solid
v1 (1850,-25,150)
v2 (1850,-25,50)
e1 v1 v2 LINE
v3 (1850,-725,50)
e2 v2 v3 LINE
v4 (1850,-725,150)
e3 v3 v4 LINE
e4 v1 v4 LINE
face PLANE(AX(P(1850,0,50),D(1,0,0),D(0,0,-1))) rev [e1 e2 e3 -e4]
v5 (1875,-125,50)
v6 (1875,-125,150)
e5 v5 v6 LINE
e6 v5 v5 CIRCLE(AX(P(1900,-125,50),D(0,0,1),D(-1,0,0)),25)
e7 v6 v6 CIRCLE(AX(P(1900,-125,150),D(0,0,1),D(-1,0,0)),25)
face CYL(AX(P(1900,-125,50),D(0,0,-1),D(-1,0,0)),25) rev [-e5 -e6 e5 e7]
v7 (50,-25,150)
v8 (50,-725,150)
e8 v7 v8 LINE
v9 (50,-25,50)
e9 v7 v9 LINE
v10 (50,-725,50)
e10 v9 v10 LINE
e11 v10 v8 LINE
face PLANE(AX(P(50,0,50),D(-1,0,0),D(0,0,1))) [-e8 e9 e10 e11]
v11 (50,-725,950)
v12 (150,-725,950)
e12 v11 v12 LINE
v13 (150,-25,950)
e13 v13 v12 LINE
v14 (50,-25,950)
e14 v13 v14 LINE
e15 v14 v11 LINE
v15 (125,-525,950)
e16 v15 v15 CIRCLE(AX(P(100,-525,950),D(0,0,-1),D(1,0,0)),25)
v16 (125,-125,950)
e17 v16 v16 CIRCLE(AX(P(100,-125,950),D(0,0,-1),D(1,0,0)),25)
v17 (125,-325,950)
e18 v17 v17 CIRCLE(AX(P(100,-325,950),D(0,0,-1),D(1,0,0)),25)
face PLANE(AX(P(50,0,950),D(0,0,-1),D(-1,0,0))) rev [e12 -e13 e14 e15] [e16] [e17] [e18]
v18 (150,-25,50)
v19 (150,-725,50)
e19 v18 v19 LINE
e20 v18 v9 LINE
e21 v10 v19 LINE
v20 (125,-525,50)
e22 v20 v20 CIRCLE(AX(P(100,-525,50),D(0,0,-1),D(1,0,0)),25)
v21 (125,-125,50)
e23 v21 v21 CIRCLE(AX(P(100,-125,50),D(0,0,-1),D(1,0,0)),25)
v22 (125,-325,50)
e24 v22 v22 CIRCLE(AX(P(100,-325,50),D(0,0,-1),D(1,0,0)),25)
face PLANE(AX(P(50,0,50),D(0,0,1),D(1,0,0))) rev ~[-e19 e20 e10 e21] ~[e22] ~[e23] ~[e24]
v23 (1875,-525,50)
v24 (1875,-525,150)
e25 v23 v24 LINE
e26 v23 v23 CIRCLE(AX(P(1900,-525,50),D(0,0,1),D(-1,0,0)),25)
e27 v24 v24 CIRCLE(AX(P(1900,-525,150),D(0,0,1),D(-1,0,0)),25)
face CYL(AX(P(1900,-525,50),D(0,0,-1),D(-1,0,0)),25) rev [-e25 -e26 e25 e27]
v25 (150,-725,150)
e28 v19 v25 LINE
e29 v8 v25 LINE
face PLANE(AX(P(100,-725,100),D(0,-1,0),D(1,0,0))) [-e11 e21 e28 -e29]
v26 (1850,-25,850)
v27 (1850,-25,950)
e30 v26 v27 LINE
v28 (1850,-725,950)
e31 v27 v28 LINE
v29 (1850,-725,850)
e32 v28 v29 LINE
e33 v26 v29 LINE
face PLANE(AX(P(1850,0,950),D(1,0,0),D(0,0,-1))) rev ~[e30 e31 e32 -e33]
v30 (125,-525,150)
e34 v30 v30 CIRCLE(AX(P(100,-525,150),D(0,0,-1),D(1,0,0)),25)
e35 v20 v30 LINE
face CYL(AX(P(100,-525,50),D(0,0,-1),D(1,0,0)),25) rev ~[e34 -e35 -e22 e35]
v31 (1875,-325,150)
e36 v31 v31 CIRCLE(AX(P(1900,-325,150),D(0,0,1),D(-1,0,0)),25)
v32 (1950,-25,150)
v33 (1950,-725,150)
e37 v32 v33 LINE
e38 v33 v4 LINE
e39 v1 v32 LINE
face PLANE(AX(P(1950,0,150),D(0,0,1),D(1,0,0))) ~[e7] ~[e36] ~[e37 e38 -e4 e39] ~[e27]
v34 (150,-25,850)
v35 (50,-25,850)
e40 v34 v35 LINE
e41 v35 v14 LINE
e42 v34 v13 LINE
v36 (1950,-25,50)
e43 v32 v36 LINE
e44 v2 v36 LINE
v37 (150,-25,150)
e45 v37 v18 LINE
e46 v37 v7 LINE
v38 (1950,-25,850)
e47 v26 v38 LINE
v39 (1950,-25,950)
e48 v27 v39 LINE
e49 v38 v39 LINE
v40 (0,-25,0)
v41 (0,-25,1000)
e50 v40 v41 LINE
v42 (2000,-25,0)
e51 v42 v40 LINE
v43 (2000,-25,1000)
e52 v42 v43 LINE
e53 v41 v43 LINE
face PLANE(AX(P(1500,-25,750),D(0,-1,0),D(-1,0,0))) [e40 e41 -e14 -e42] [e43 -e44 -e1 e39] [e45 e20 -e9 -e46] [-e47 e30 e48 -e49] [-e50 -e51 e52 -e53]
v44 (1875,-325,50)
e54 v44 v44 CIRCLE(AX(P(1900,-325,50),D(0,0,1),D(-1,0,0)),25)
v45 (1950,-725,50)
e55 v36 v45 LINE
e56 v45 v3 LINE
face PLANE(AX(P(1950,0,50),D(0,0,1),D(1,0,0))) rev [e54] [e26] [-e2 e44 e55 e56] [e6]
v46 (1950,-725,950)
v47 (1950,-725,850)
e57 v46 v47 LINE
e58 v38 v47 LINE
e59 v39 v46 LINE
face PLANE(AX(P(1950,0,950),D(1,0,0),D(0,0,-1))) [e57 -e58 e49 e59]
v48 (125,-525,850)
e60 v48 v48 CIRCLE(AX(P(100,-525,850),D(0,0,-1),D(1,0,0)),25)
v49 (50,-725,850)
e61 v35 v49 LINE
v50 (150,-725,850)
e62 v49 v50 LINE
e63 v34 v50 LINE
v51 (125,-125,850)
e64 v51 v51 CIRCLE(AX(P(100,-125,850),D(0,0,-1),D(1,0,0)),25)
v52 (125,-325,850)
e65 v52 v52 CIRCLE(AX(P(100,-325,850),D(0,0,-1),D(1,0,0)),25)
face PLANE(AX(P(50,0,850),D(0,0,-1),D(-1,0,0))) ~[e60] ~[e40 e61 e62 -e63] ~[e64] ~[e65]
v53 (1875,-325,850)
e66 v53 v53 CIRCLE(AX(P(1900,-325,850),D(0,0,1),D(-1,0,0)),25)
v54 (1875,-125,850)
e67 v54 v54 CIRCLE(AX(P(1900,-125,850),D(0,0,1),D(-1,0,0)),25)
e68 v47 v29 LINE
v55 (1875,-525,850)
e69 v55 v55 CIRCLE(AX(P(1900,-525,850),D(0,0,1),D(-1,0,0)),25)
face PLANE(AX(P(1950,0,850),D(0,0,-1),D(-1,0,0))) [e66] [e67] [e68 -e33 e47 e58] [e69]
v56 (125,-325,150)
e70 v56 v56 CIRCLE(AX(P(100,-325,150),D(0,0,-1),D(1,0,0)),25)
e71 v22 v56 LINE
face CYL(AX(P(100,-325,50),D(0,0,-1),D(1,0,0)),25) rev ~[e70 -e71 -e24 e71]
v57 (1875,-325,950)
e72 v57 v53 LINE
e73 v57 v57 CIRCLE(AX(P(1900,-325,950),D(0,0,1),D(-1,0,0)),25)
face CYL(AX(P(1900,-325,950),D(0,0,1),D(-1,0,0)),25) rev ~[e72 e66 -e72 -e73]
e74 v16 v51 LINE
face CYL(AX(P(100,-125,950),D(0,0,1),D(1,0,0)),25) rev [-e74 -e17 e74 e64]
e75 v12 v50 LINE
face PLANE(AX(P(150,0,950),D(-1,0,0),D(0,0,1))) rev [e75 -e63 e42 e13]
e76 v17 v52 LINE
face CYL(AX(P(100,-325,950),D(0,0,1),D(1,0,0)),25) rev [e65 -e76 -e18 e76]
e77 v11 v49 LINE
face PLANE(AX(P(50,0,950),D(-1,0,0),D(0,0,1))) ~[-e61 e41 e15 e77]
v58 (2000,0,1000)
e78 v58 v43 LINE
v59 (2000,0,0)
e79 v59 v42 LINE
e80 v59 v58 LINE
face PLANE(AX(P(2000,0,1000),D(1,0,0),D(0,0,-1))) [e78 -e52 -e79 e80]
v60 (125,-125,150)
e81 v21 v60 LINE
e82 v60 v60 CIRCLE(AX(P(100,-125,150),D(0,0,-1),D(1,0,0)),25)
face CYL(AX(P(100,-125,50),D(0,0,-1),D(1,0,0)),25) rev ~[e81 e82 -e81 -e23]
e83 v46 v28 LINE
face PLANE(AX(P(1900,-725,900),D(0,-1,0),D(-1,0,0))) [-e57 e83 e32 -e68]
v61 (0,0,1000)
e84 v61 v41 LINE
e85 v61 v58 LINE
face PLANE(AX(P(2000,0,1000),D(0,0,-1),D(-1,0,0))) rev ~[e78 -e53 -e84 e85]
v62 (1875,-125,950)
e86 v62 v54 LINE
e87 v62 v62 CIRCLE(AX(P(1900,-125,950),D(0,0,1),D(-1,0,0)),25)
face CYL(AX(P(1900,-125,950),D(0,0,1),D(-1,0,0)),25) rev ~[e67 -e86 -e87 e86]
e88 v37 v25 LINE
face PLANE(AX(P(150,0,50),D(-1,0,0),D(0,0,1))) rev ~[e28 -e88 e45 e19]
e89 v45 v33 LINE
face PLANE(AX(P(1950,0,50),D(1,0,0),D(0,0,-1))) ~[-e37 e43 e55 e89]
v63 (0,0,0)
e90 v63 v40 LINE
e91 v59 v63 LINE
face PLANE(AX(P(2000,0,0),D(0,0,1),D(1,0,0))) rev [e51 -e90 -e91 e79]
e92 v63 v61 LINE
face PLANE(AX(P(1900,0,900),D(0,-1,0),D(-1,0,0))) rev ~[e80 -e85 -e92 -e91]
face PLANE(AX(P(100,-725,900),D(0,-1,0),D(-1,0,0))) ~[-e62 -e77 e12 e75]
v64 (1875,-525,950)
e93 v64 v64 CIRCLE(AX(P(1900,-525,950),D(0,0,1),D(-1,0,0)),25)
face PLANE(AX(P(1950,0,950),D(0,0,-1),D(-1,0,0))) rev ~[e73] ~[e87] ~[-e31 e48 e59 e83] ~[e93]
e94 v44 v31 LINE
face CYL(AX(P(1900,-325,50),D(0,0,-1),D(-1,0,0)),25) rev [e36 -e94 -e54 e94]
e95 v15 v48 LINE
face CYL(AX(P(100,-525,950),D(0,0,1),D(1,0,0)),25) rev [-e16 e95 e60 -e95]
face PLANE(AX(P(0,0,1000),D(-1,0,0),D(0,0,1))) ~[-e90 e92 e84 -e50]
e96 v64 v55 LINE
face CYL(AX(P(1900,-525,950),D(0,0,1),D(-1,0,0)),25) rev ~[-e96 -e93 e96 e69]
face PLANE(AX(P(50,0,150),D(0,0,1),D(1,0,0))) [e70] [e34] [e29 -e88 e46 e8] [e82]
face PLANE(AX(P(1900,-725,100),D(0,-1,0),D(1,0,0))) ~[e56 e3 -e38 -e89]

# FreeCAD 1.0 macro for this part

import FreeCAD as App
import Part
import Sketcher
Q = App.Units.Quantity

doc = App.newDocument("Part")
body = doc.addObject("PartDesign::Body", "Body")

# Sketch on XZ plane
sketch1 = body.newObject("Sketcher::SketchObject", "Sketch")
sketch1.AttachmentSupport = (doc.getObject("XZ_Plane"), [""])
sketch1.MapMode = "FlatFace"
sketch1.addGeometry(Part.LineSegment(App.Vector(0, 500, 0), App.Vector(0, 0, 0)), False)
sketch1.addGeometry(Part.LineSegment(App.Vector(0, 0, 0), App.Vector(1000, 0, 0)), False)
sketch1.addGeometry(Part.LineSegment(App.Vector(1000, 0, 0), App.Vector(1000, 500, 0)), False)
sketch1.addGeometry(Part.LineSegment(App.Vector(1000, 500, 0), App.Vector(0, 500, 0)), False)
sketch1.addConstraint(Sketcher.Constraint("Coincident", 0, 2, 1, 1))
sketch1.addConstraint(Sketcher.Constraint("Coincident", 1, 2, 2, 1))
sketch1.addConstraint(Sketcher.Constraint("Coincident", 2, 2, 3, 1))
sketch1.addConstraint(Sketcher.Constraint("Coincident", 3, 2, 0, 1))
sketch1.addConstraint(Sketcher.Constraint("Vertical", 0))
sketch1.addConstraint(Sketcher.Constraint("Horizontal", 1))
sketch1.addConstraint(Sketcher.Constraint("Vertical", 2))
sketch1.addConstraint(Sketcher.Constraint("Horizontal", 3))
sketch1.addConstraint(Sketcher.Constraint("Coincident", 0, 2, -1, 1))
sketch1.addConstraint(Sketcher.Constraint("DistanceX", 1, 1, 1, 2, Q("1000 mm")))
sketch1.addConstraint(Sketcher.Constraint("DistanceY", 0, 2, 0, 1, Q("500 mm")))
pad1 = body.newObject("PartDesign::Pad", "Pad")
pad1.Profile = sketch1
pad1.Length = 25

# Sketch on XZ plane
sketch2 = body.newObject("Sketcher::SketchObject", "Sketch001")
sketch2.AttachmentSupport = (doc.getObject("XZ_Plane"), [""])
sketch2.MapMode = "FlatFace"
sketch2.addGeometry(Part.LineSegment(App.Vector(50, 150, 0), App.Vector(50, 50, 0)), False)
sketch2.addGeometry(Part.LineSegment(App.Vector(50, 50, 0), App.Vector(150, 50, 0)), False)
sketch2.addGeometry(Part.LineSegment(App.Vector(150, 50, 0), App.Vector(150, 150, 0)), False)
sketch2.addGeometry(Part.LineSegment(App.Vector(150, 150, 0), App.Vector(50, 150, 0)), False)
sketch2.addConstraint(Sketcher.Constraint("Coincident", 0, 2, 1, 1))
sketch2.addConstraint(Sketcher.Constraint("Coincident", 1, 2, 2, 1))
sketch2.addConstraint(Sketcher.Constraint("Coincident", 2, 2, 3, 1))
sketch2.addConstraint(Sketcher.Constraint("Coincident", 3, 2, 0, 1))
sketch2.addConstraint(Sketcher.Constraint("Vertical", 0))
sketch2.addConstraint(Sketcher.Constraint("Horizontal", 1))
sketch2.addConstraint(Sketcher.Constraint("Vertical", 2))
sketch2.addConstraint(Sketcher.Constraint("Horizontal", 3))
sketch2.addConstraint(Sketcher.Constraint("Equal", 3, 0))
sketch2.addConstraint(Sketcher.Constraint("DistanceX", 1, 1, 1, 2, Q("100 mm")))
sketch2.addConstraint(Sketcher.Constraint("DistanceX", -1, 1, 0, 2, Q("50 mm")))
sketch2.addConstraint(Sketcher.Constraint("DistanceY", -1, 1, 0, 2, Q("50 mm")))
pad2 = body.newObject("PartDesign::Pad", "Pad001")
pad2.Profile = sketch2
pad2.Length = 725

# Sketch on XY plane
sketch3 = body.newObject("Sketcher::SketchObject", "Sketch002")
sketch3.AttachmentSupport = (doc.getObject("XY_Plane"), [""])
sketch3.MapMode = "FlatFace"
sketch3.AttachmentOffset = App.Placement(App.Vector(0, 0, 50), App.Rotation())
sketch3.addGeometry(Part.Circle(App.Vector(100, -125, 0), App.Vector(0, 0, 1), 25), False)
sketch3.addGeometry(Part.Circle(App.Vector(100, -325, 0), App.Vector(0, 0, 1), 25), False)
sketch3.addGeometry(Part.Circle(App.Vector(100, -525, 0), App.Vector(0, 0, 1), 25), False)
sketch3.addConstraint(Sketcher.Constraint("Equal", 0, 1))
sketch3.addConstraint(Sketcher.Constraint("Equal", 1, 2))
sketch3.addConstraint(Sketcher.Constraint("Vertical", 0, 3, 1, 3))
sketch3.addConstraint(Sketcher.Constraint("Vertical", 1, 3, 2, 3))
sketch3.addConstraint(Sketcher.Constraint("Diameter", 0, Q("50 mm")))
sketch3.addConstraint(Sketcher.Constraint("DistanceX", -1, 1, 0, 3, Q("100 mm")))
sketch3.addConstraint(Sketcher.Constraint("DistanceY", 0, 3, -1, 1, Q("125 mm")))
sketch3.addConstraint(Sketcher.Constraint("DistanceY", 1, 3, -1, 1, Q("325 mm")))
sketch3.addConstraint(Sketcher.Constraint("DistanceY", 2, 3, -1, 1, Q("525 mm")))
pocket1 = body.newObject("PartDesign::Pocket", "Pocket")
pocket1.Profile = sketch3
pocket1.Type = "ThroughAll"
pocket1.Reversed = True
body2 = doc.addObject("PartDesign::Body", "Body001")
doc.recompute()

body2.BaseFeature = body
doc.recompute()

mirroring = doc.addObject("Part::Mirroring", "Mirroring")
mirroring.Source = body
mirroring.Base = App.Vector(500, -12.5, 500)
mirroring.Normal = App.Vector(0, 0, 1)
body3 = doc.addObject("PartDesign::Body", "Body002")
body3.BaseFeature = mirroring
boolean = body2.newObject("PartDesign::Boolean", "Boolean")
boolean.Type = "Fuse"
boolean.addObjects([body3])
doc.recompute()
body4 = doc.addObject("PartDesign::Body", "Body003")
doc.recompute()

body4.BaseFeature = body2
doc.recompute()

mirroring2 = doc.addObject("Part::Mirroring", "Mirroring001")
mirroring2.Source = body2
mirroring2.Base = App.Vector(1000, -12.5, 250)
mirroring2.Normal = App.Vector(1, 0, 0)
body5 = doc.addObject("PartDesign::Body", "Body004")
body5.BaseFeature = mirroring2
boolean2 = body4.newObject("PartDesign::Boolean", "Boolean001")
boolean2.Type = "Fuse"
boolean2.addObjects([body5])
doc.recompute()
mirroring.Visibility = False
mirroring2.Visibility = False

doc.recompute()
